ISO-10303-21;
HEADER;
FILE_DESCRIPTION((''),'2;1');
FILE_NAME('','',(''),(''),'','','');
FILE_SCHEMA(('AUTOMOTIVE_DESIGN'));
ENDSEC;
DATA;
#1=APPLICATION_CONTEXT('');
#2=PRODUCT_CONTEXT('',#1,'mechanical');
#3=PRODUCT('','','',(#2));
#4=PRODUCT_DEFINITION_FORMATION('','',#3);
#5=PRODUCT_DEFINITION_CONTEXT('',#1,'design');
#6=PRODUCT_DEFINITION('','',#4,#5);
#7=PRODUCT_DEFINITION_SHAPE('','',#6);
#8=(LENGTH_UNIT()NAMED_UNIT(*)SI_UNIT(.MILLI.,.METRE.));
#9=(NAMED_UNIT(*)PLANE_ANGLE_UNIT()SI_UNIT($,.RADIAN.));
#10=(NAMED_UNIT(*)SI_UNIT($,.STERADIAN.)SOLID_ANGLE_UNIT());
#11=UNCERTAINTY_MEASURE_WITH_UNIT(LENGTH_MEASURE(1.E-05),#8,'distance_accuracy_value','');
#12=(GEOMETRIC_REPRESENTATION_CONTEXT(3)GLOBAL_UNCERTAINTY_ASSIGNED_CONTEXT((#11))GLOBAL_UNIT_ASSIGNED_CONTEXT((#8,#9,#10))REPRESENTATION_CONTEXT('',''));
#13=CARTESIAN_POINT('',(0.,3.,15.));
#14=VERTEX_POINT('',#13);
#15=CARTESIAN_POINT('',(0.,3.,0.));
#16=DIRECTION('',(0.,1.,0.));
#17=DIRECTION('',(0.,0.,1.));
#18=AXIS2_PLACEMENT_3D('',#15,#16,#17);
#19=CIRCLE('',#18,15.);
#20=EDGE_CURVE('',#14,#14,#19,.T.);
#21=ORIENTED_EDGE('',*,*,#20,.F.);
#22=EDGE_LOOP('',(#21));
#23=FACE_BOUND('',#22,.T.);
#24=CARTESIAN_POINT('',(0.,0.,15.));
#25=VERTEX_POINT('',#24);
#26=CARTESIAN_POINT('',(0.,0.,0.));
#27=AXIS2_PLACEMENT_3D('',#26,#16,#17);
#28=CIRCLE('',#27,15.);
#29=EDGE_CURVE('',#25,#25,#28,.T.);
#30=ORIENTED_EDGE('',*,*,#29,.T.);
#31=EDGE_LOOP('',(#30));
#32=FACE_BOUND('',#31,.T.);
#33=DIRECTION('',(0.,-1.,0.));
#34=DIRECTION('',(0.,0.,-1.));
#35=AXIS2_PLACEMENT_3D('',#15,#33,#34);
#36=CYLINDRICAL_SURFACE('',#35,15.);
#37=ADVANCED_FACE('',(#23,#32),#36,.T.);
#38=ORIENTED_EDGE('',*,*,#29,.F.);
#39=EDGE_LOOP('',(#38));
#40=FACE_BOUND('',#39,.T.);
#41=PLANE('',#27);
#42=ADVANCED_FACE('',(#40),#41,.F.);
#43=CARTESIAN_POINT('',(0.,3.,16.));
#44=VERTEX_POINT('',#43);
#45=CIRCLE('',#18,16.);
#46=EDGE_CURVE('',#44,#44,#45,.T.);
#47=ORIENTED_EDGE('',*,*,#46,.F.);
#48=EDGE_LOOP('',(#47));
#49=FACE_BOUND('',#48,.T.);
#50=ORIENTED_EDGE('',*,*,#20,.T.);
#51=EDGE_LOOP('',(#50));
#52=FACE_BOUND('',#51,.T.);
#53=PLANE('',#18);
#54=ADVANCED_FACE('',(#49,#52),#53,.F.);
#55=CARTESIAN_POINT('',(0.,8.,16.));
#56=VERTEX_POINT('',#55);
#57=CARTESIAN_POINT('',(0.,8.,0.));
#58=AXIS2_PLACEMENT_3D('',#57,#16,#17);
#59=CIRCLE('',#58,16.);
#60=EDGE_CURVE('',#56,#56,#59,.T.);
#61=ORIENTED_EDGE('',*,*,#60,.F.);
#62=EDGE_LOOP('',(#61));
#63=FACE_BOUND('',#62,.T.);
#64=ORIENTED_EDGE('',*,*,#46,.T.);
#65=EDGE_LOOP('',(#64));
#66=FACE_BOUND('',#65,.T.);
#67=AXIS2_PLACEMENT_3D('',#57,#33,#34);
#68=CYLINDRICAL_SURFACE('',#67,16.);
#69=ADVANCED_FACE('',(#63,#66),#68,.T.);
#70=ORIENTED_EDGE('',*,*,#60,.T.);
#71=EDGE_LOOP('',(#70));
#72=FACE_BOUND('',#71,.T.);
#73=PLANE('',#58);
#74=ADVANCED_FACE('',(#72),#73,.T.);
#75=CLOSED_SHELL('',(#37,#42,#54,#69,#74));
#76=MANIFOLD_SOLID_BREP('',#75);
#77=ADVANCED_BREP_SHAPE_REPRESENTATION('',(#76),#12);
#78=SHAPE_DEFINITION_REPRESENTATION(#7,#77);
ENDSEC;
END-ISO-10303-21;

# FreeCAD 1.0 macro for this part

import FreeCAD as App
import Part
import Sketcher
from FreeCAD import Vector
Q = App.Units.Quantity

doc = App.newDocument("Part")
body = doc.addObject("PartDesign::Body", "Body")

# Sketch on XZ plane
sketch1 = doc.addObject("Sketcher::SketchObject", "Sketch")
body.addObject(sketch1)
sketch1.AttachmentSupport = (doc.XZ_Plane, [""])
sketch1.MapMode = "FlatFace"
sketch1.addGeometry(Part.Circle(Vector(0, 0, 0), Vector(0, 0, 1), 15), False)
sketch1.addConstraint(Sketcher.Constraint("Coincident", 0, 3, -1, 1))
sketch1.addConstraint(Sketcher.Constraint("Diameter", 0, Q("30 mm")))
pad1 = doc.addObject("PartDesign::Pad", "Pad")
body.addObject(pad1)
pad1.Profile = sketch1
pad1.Length = 3
pad1.Reversed = True

# Sketch on XZ plane
sketch2 = doc.addObject("Sketcher::SketchObject", "Sketch001")
body.addObject(sketch2)
sketch2.AttachmentSupport = (doc.XZ_Plane, [""])
sketch2.MapMode = "FlatFace"
sketch2.AttachmentOffset = App.Placement(Vector(0, 0, -3), App.Rotation())
sketch2.addGeometry(Part.Circle(Vector(0, 0, 0), Vector(0, 0, 1), 16), False)
sketch2.addConstraint(Sketcher.Constraint("Coincident", 0, 3, -1, 1))
sketch2.addConstraint(Sketcher.Constraint("Diameter", 0, Q("32 mm")))
pad2 = doc.addObject("PartDesign::Pad", "Pad001")
body.addObject(pad2)
pad2.Profile = sketch2
pad2.Length = 5
pad2.Reversed = True

doc.recompute()
